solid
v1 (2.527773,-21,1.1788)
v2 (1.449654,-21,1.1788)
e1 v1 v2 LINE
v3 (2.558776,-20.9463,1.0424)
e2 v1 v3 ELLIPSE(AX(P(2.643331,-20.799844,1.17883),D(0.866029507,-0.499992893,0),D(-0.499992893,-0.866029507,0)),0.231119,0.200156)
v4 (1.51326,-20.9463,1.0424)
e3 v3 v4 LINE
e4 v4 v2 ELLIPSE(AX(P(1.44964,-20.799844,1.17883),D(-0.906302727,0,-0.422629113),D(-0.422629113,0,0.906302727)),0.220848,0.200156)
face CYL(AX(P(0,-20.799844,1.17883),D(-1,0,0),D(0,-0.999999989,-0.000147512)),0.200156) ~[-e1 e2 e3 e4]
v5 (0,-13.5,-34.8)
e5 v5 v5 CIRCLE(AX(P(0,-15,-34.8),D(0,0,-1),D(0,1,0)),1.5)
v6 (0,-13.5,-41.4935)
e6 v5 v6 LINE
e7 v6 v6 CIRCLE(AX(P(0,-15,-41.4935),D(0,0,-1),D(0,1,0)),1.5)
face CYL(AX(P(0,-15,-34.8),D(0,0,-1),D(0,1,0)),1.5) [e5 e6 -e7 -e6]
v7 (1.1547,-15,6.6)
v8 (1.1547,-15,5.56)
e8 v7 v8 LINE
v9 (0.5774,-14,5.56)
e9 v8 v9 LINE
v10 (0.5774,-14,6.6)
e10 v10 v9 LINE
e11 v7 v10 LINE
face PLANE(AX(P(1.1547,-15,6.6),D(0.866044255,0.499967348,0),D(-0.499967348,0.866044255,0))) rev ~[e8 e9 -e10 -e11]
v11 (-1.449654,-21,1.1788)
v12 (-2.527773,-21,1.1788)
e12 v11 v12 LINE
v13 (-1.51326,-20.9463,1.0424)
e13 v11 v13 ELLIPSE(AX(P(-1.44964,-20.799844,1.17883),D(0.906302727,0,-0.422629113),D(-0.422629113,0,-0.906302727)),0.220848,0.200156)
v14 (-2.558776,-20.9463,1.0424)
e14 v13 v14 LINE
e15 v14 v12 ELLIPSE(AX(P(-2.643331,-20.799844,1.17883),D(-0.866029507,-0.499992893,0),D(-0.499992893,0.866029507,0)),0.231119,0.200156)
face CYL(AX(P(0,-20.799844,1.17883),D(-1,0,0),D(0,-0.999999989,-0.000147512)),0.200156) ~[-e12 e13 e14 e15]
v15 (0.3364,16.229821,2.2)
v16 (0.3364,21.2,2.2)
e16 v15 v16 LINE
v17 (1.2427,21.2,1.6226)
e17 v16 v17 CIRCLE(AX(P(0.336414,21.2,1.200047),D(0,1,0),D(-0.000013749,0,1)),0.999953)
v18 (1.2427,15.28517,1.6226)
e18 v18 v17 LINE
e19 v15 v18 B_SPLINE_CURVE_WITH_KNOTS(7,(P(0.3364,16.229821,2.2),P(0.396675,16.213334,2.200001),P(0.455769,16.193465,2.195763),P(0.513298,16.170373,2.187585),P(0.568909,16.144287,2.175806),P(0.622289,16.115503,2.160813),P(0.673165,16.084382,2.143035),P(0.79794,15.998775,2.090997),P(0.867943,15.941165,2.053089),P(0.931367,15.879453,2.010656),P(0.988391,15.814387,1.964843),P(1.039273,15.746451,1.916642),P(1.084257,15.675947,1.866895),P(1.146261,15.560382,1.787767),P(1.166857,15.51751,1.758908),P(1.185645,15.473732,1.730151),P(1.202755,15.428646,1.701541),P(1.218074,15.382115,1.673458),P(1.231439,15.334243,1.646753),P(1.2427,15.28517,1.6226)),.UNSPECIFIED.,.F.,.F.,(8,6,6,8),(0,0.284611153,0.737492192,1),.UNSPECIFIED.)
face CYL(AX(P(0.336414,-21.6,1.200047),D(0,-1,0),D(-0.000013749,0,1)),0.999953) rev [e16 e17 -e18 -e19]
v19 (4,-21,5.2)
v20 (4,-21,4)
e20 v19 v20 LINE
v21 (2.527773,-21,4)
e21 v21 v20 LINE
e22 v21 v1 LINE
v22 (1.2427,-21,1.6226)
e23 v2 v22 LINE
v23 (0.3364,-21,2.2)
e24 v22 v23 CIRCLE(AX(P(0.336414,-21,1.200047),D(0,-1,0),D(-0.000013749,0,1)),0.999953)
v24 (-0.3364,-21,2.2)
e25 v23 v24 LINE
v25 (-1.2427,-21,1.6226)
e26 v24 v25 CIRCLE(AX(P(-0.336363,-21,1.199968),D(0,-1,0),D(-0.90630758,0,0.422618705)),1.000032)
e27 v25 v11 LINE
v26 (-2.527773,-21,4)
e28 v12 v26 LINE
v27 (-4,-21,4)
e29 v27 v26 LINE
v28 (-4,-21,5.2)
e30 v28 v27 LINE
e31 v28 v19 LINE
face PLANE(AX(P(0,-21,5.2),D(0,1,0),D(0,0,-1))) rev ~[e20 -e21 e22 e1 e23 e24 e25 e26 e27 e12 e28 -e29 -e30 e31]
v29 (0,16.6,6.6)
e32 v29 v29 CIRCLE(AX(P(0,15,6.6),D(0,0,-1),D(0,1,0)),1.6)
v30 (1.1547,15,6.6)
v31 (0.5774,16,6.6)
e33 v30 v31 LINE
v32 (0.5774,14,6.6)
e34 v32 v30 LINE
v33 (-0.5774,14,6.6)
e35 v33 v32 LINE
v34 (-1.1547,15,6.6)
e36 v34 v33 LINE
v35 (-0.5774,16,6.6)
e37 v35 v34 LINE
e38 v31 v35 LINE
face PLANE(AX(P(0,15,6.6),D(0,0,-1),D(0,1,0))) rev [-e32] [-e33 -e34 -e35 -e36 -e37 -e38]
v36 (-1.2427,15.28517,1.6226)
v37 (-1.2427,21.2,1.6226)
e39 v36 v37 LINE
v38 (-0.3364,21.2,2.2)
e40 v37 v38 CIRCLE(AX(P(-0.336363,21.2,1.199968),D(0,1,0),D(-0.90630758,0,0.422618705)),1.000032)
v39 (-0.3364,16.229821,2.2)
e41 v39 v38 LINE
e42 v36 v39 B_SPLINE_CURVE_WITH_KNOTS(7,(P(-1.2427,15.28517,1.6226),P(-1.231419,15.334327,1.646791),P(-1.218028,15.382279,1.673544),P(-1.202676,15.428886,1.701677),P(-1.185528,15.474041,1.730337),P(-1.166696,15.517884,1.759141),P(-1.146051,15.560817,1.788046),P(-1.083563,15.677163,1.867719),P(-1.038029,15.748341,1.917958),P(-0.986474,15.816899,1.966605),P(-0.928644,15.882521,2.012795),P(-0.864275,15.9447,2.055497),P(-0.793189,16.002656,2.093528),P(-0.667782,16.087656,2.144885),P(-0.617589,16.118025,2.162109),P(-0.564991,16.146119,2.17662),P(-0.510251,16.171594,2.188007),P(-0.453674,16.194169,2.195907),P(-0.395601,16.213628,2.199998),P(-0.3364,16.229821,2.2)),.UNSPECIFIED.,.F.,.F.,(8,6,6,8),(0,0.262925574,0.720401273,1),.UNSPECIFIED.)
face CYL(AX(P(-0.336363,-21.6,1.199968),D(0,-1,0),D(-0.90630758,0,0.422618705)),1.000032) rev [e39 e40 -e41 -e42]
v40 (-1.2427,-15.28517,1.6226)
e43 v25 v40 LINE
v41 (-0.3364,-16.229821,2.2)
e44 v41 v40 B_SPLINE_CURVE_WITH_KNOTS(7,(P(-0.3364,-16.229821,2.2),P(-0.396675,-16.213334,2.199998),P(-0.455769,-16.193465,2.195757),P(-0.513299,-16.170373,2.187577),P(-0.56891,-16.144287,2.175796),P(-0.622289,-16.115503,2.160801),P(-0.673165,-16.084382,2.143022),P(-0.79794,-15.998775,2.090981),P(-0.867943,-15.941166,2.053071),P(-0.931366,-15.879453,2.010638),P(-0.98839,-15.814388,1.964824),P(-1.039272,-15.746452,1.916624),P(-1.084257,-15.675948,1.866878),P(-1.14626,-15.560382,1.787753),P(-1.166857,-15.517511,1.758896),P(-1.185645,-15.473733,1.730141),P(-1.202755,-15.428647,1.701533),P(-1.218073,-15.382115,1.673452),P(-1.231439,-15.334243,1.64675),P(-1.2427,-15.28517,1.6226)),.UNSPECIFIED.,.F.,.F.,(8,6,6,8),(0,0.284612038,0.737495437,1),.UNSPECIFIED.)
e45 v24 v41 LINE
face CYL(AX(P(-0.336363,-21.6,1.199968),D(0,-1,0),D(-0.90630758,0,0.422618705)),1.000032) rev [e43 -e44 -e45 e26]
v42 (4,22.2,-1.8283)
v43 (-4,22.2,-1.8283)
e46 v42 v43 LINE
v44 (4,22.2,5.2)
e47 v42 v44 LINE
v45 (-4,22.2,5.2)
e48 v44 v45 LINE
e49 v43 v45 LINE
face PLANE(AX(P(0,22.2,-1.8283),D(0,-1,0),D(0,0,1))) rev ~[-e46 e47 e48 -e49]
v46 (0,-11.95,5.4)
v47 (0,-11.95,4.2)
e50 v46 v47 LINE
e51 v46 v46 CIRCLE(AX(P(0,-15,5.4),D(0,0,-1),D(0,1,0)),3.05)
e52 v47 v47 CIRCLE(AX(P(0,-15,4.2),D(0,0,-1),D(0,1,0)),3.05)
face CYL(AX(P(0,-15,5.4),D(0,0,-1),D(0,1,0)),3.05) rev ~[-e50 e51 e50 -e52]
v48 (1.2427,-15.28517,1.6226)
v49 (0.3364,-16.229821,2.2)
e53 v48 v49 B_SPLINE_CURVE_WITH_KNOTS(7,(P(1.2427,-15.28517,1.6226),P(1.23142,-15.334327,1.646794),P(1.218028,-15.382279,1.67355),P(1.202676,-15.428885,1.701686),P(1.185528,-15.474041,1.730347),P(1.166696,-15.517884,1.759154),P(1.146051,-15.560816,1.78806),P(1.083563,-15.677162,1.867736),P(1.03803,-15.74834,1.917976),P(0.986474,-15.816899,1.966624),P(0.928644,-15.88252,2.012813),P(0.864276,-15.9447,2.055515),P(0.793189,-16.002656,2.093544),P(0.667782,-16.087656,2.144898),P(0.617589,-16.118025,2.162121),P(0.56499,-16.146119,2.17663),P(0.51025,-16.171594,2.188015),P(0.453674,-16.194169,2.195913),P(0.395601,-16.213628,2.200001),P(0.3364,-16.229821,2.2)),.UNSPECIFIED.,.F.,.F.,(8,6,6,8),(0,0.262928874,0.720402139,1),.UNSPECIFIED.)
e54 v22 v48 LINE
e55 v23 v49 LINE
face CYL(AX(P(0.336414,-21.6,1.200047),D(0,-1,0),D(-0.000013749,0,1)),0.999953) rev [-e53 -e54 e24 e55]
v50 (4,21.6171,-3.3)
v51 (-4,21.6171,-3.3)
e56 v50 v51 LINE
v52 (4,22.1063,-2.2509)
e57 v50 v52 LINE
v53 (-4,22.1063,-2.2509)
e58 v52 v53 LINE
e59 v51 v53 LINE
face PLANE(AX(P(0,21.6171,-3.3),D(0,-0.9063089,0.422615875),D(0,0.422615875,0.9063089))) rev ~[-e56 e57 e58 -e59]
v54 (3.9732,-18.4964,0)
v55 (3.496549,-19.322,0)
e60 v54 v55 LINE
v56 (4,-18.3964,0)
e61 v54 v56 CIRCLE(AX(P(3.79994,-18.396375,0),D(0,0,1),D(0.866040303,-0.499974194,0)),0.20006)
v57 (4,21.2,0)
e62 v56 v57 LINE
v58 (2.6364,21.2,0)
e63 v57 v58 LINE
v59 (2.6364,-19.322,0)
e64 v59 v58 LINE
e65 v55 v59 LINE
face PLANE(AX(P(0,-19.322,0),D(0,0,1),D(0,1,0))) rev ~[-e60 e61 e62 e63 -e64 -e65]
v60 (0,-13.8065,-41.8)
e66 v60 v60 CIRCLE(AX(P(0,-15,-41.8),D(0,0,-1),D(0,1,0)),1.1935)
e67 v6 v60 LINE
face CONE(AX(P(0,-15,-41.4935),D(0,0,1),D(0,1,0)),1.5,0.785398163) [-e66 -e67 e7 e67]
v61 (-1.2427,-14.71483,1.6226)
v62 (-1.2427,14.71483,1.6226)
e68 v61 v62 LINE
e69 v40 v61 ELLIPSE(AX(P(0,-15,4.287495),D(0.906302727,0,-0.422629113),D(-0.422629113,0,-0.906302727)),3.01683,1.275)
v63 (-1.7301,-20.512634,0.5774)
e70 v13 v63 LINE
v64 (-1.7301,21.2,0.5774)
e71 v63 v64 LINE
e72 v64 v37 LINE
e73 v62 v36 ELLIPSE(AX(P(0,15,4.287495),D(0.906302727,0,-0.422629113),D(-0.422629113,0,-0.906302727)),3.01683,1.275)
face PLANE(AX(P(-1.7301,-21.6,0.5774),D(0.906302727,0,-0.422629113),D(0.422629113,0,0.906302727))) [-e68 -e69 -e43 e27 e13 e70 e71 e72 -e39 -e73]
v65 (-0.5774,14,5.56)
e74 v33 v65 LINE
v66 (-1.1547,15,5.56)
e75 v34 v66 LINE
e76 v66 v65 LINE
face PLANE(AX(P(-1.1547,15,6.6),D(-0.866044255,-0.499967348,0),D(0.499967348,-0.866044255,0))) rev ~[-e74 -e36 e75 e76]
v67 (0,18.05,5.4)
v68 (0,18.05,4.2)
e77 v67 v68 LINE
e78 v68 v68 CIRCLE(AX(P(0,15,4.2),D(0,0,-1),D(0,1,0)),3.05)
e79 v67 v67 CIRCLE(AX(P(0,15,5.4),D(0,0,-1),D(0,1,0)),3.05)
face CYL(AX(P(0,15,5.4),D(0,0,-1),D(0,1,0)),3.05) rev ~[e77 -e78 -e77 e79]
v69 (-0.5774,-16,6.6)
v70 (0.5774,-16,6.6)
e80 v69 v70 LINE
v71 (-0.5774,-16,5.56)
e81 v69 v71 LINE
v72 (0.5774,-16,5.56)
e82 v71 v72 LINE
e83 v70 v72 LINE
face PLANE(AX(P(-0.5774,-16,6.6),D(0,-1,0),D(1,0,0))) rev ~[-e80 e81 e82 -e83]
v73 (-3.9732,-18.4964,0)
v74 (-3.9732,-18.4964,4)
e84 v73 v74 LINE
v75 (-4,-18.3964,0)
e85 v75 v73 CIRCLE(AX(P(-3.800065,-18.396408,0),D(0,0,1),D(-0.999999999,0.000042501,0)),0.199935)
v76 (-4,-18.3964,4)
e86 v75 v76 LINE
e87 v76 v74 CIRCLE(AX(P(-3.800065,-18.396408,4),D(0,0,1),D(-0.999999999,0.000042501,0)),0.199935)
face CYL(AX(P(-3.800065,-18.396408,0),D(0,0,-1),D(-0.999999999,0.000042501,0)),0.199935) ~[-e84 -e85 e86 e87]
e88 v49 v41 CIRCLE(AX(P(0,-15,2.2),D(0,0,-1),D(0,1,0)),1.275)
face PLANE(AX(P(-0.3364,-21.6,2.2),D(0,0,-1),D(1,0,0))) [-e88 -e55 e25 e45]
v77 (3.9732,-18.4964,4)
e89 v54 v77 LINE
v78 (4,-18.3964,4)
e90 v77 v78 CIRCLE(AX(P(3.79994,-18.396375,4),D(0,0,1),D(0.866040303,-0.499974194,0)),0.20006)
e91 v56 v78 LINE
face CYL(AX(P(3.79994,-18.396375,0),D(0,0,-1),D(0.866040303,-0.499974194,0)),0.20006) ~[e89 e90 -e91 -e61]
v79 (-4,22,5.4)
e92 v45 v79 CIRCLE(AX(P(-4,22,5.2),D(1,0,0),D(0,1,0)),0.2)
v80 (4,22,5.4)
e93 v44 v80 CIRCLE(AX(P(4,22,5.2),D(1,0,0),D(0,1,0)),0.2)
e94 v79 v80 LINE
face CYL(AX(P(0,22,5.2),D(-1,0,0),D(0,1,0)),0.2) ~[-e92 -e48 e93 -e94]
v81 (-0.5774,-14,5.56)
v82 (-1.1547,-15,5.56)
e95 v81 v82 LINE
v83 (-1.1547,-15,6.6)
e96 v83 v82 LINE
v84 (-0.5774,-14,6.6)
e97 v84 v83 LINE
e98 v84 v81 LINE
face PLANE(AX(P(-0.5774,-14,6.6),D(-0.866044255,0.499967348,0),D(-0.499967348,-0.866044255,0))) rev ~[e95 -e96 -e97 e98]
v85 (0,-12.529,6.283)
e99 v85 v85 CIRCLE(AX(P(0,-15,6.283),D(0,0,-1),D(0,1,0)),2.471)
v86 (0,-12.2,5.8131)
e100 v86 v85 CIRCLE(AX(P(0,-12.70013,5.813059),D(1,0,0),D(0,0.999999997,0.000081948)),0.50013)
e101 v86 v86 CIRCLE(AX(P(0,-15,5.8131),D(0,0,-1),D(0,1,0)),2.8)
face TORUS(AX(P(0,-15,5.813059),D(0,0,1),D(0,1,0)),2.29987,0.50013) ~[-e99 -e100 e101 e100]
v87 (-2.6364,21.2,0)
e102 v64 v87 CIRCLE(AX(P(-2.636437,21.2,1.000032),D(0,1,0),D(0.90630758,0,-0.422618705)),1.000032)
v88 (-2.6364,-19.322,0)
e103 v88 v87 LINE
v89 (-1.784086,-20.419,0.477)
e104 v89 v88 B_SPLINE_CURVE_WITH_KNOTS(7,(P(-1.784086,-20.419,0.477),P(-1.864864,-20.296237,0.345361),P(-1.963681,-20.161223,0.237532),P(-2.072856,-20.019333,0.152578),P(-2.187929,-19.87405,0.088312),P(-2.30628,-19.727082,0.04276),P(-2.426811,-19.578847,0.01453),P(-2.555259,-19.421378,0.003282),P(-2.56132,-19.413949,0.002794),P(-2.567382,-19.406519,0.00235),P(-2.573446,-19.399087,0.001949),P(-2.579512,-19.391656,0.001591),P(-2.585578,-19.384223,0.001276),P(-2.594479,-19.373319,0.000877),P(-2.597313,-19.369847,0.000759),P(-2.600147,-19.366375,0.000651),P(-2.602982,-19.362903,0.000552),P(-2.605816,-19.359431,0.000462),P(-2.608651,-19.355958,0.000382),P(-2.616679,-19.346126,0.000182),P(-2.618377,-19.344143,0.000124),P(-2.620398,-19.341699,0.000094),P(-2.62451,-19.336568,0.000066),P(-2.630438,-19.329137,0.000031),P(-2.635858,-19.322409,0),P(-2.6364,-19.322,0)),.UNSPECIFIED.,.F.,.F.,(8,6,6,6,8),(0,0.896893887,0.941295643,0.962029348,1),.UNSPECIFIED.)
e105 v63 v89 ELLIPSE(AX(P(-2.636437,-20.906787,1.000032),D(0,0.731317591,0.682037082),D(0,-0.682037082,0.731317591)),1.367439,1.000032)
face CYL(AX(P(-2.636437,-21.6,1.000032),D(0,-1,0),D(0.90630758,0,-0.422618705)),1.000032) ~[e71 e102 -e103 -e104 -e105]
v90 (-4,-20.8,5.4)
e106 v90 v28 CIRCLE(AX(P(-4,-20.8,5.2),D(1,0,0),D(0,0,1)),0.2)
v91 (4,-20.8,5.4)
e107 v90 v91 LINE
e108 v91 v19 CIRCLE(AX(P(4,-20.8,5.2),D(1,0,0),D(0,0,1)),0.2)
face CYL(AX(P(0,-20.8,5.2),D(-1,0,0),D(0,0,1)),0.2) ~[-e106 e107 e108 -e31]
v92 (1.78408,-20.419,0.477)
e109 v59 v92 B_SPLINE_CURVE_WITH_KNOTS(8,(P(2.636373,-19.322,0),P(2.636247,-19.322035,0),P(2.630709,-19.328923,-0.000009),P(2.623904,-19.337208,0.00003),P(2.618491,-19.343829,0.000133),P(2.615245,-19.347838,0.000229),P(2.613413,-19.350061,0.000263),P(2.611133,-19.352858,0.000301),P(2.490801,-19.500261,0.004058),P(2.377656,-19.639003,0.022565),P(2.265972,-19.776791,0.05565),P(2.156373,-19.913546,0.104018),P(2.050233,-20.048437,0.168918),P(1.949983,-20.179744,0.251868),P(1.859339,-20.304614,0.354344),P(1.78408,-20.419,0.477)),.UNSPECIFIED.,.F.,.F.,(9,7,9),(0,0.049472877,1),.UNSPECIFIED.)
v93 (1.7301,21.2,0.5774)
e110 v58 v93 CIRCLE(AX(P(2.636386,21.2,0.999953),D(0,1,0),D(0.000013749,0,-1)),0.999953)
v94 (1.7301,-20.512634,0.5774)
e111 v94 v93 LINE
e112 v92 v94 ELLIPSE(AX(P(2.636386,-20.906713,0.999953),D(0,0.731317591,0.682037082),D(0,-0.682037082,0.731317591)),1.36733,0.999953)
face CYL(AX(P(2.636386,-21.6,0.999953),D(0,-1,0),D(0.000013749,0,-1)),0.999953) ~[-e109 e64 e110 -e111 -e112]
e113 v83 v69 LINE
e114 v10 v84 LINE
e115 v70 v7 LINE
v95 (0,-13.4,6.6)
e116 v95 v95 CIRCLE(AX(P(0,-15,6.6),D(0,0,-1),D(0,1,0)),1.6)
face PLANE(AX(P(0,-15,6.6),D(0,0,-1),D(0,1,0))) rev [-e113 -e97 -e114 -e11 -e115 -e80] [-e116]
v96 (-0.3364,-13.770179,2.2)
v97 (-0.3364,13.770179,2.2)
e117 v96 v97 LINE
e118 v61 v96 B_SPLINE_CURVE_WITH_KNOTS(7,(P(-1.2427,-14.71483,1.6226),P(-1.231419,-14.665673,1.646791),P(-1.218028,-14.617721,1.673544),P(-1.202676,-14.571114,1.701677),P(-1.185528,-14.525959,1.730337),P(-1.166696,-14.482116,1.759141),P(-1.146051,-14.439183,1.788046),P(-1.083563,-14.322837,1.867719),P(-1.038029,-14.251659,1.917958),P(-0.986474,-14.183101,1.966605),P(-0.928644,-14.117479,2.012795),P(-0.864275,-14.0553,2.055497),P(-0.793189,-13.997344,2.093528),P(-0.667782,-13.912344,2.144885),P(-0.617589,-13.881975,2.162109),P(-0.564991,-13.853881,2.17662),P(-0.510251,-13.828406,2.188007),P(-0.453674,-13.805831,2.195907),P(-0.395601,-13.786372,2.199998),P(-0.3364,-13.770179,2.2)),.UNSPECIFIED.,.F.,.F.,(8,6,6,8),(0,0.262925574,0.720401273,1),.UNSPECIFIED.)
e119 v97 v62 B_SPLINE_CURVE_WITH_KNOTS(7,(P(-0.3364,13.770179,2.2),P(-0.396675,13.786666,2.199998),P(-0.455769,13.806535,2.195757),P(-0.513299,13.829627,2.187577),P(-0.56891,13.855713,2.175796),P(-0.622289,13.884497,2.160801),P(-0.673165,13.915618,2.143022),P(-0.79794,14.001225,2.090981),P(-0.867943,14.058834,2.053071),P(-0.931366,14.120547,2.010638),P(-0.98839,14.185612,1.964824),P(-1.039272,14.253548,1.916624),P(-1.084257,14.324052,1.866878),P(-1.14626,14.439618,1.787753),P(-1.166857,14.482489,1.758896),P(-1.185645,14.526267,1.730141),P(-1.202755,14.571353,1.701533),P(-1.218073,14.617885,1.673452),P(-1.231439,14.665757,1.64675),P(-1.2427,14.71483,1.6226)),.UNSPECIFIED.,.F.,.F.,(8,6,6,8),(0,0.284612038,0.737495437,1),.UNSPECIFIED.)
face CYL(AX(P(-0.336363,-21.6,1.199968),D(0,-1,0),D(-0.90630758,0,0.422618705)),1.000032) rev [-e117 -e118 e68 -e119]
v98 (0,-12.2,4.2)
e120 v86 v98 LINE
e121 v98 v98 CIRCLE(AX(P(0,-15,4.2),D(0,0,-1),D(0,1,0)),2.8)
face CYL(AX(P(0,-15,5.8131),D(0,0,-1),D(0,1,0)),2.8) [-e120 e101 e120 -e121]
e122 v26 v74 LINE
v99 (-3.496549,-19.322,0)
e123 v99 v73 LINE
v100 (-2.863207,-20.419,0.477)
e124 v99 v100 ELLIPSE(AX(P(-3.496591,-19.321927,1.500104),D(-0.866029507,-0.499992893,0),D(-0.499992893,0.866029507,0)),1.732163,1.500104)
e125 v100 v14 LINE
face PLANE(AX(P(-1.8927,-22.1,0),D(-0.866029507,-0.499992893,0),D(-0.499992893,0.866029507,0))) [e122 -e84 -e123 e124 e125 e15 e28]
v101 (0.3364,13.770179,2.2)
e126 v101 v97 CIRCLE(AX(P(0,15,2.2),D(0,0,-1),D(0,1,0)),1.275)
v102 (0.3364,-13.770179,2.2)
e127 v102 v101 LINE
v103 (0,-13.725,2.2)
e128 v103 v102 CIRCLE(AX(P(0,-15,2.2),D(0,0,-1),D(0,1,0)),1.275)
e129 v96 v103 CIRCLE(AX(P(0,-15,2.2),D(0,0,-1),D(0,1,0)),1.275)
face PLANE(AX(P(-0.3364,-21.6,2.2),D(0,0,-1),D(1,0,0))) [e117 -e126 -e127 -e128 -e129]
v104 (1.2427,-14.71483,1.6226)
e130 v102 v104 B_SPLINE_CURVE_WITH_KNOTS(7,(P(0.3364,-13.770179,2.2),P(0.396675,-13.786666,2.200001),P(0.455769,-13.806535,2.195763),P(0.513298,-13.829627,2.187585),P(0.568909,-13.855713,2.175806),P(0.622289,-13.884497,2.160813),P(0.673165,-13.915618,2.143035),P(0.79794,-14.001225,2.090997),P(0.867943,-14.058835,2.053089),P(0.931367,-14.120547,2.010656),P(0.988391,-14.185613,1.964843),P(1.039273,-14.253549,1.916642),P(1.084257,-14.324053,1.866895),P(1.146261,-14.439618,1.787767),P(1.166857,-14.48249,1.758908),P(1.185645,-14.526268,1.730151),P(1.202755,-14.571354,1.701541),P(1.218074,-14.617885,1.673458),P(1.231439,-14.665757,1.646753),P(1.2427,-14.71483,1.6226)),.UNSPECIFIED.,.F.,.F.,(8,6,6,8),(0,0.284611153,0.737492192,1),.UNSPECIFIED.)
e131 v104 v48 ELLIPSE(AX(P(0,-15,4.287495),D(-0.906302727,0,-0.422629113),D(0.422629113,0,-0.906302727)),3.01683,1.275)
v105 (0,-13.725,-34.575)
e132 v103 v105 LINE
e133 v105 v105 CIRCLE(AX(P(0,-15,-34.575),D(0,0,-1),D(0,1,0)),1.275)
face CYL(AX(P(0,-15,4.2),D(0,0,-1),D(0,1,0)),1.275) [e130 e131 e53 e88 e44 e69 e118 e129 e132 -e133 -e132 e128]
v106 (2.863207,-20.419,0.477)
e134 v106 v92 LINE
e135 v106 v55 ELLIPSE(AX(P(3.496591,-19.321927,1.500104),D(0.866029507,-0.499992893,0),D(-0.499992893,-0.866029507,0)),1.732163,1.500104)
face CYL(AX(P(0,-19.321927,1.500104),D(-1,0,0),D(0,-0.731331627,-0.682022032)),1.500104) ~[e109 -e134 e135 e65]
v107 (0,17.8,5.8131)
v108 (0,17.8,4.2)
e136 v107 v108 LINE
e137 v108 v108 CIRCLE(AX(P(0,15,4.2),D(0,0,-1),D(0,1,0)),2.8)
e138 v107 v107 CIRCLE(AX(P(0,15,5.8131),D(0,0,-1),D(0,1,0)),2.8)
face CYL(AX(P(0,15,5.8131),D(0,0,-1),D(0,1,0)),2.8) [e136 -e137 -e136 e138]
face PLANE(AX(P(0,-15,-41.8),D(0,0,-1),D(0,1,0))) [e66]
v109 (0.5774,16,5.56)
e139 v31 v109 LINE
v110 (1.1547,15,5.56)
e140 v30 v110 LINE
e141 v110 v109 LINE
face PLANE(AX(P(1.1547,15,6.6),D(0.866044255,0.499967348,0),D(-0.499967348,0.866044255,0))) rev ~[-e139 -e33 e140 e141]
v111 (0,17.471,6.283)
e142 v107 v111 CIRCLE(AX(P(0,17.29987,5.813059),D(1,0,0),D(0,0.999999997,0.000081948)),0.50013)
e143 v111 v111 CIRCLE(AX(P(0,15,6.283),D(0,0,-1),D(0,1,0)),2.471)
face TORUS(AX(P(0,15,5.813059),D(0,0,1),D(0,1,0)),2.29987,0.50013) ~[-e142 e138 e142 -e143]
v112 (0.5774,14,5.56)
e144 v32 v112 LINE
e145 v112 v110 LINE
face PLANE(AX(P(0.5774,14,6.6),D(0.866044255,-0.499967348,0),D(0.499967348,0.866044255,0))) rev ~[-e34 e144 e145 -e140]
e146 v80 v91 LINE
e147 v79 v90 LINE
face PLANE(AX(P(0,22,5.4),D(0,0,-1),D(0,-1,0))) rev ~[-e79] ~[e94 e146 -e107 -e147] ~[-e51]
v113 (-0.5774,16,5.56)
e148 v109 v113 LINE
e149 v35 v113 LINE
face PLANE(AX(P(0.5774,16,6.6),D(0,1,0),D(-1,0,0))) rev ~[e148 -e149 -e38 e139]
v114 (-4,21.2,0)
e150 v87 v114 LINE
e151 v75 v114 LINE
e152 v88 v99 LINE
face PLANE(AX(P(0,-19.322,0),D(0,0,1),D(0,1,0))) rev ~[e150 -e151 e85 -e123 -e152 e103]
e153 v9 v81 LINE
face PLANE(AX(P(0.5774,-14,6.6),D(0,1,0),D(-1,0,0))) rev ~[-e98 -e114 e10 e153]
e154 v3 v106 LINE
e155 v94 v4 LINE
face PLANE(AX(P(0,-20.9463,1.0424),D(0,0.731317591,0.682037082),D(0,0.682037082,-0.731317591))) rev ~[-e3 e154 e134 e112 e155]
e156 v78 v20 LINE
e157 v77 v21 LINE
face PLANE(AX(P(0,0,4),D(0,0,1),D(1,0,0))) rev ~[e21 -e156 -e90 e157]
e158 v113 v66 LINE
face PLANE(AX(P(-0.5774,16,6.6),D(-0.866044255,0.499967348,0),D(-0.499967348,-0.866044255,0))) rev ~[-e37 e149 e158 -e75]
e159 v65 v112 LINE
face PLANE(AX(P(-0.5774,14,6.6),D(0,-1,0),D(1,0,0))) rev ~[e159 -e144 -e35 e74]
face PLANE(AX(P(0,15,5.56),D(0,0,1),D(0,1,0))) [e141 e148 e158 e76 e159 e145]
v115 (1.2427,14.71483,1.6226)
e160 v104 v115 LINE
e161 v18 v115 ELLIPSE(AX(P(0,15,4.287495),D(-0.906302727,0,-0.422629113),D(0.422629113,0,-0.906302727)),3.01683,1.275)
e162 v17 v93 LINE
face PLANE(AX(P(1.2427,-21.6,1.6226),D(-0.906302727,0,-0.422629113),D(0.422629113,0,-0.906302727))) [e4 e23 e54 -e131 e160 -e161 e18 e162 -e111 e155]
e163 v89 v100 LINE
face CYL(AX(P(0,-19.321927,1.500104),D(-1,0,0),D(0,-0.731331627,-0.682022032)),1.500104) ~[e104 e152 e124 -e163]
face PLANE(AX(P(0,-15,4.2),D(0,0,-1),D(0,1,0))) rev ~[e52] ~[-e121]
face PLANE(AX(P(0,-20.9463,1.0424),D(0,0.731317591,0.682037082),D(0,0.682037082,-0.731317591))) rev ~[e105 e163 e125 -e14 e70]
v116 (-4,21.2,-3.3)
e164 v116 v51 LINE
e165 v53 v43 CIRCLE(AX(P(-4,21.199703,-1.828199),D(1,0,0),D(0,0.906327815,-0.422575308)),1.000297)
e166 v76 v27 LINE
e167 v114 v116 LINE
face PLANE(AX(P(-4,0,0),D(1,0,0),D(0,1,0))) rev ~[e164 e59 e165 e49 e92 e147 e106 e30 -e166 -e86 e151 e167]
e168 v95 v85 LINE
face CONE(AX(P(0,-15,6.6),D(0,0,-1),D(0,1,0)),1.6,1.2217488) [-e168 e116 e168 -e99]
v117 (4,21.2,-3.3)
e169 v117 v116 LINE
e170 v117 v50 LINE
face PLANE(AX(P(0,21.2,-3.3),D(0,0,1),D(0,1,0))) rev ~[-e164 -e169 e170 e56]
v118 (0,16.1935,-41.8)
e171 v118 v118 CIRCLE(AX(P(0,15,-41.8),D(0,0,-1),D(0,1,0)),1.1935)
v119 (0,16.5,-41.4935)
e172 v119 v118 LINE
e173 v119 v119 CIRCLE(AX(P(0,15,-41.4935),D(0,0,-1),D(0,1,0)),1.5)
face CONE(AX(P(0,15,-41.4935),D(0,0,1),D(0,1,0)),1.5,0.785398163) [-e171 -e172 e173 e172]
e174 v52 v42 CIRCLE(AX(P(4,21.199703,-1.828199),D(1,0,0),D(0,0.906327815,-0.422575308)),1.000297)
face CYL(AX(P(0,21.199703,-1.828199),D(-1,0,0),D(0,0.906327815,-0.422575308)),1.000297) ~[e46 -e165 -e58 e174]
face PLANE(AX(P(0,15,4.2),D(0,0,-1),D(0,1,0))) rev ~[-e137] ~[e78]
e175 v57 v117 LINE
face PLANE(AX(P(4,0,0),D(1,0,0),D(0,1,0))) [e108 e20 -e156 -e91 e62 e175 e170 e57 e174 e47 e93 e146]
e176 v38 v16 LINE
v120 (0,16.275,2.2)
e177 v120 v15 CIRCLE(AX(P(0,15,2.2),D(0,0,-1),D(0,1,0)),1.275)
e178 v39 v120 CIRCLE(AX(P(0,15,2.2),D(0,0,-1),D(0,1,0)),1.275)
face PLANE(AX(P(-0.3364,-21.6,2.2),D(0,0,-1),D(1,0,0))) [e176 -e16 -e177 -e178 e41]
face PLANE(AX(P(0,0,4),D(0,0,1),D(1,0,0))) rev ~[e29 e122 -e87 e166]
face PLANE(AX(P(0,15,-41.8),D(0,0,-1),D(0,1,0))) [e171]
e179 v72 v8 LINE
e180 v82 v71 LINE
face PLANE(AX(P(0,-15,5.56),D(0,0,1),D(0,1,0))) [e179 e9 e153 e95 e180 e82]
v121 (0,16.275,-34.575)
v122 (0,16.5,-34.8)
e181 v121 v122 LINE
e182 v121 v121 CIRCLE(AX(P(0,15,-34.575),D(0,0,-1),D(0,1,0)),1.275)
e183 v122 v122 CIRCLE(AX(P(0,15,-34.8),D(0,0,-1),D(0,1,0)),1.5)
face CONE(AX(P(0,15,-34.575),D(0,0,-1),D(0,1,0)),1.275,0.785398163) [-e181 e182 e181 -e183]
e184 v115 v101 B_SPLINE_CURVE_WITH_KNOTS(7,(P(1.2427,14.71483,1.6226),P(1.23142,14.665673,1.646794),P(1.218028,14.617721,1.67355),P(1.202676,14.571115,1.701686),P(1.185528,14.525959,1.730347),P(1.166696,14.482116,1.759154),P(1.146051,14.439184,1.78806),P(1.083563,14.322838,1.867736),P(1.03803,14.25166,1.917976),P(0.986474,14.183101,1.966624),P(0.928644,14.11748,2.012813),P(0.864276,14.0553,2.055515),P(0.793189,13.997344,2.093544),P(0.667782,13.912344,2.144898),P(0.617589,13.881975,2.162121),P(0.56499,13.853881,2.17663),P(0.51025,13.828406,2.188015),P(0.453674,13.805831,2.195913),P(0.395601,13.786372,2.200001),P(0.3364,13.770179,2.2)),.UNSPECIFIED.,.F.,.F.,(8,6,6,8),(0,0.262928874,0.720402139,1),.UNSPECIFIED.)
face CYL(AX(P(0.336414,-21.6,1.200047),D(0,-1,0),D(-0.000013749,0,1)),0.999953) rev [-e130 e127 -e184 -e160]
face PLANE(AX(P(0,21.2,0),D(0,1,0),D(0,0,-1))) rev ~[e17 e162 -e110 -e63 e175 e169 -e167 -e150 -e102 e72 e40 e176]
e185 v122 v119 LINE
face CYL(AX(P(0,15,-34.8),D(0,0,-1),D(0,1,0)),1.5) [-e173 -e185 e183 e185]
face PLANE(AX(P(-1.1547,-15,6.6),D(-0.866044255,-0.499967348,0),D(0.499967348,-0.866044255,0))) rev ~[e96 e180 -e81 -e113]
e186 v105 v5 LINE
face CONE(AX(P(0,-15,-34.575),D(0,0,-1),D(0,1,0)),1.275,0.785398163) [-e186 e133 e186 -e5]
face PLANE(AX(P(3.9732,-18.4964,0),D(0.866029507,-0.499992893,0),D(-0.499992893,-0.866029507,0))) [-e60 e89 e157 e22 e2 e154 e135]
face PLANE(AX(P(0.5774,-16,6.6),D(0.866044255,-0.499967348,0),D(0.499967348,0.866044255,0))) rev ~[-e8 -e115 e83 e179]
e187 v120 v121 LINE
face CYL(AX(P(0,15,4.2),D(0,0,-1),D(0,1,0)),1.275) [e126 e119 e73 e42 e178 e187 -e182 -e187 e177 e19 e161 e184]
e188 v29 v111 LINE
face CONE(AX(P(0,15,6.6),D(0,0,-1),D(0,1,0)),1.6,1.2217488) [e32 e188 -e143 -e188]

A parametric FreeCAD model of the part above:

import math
import FreeCAD as App
import Part
import Sketcher
from FreeCAD import Vector
Q = App.Units.Quantity


def add_polygon(sketch, points):
    """Adds a closed chain of lines whose ends are joined by coincident constraints."""
    first, n = sketch.GeometryCount, len(points)
    for a, b in zip(points, points[1:] + points[:1]):
        sketch.addGeometry(Part.LineSegment(App.Vector(*a, 0), App.Vector(*b, 0)), False)
    for i in range(n):
        sketch.addConstraint(Sketcher.Constraint("Coincident", first + i, 2, first + (i + 1) % n, 1))

doc = App.newDocument("Part")
body = doc.addObject("PartDesign::Body", "Body")

# Sketch on YZ plane
sketch1 = body.newObject("Sketcher::SketchObject", "Sketch")
sketch1.AttachmentSupport = (doc.getObject("YZ_Plane"), [""])
sketch1.MapMode = "FlatFace"
sketch1.addGeometry([
    Part.ArcOfCircle(Part.Circle(Vector(22, 5.2, 0), Vector(0, 0, 1), 0.2), math.radians(0), math.radians(90)),  # 0
    Part.LineSegment(Vector(22, 5.4, 0), Vector(-20.8, 5.4, 0)),  # 1
    Part.ArcOfCircle(Part.Circle(Vector(-20.8, 5.2, 0), Vector(0, 0, 1), 0.2), math.radians(90), math.radians(180)),  # 2
    Part.LineSegment(Vector(-21, 5.2, 0), Vector(-21, 1.18, 0)),  # 3
    Part.ArcOfCircle(Part.Circle(Vector(-20.8, 1.18, 0), Vector(0, 0, 1), 0.2), math.radians(180), math.radians(223)),  # 4
    Part.LineSegment(Vector(-20.95, 1.04, 0), Vector(-20.42, 0.48, 0)),  # 5
    Part.ArcOfCircle(Part.Circle(Vector(-19.32, 1.5, 0), Vector(0, 0, 1), 1.5), math.radians(-137), math.radians(-90)),  # 6
    Part.LineSegment(Vector(-19.32, 0, 0), Vector(21.2, 0, 0)),  # 7
    Part.LineSegment(Vector(21.2, 0, 0), Vector(21.2, -3.3, 0)),  # 8
    Part.LineSegment(Vector(21.2, -3.3, 0), Vector(21.62, -3.3, 0)),  # 9
    Part.LineSegment(Vector(21.62, -3.3, 0), Vector(22.11, -2.25, 0)),  # 10
    Part.ArcOfCircle(Part.Circle(Vector(21.2, -1.83, 0), Vector(0, 0, 1), 1), math.radians(-25), math.radians(0)),  # 11
    Part.LineSegment(Vector(22.2, -1.83, 0), Vector(22.2, 5.2, 0)),  # 12
], False)
sketch1.addConstraint([
    Sketcher.Constraint("Tangent", 0, 2, 1, 1),
    Sketcher.Constraint("Tangent", 1, 2, 2, 1),
    Sketcher.Constraint("Tangent", 2, 2, 3, 1),
    Sketcher.Constraint("Tangent", 3, 2, 4, 1),
    Sketcher.Constraint("Tangent", 4, 2, 5, 1),
    Sketcher.Constraint("Tangent", 5, 2, 6, 1),
    Sketcher.Constraint("Tangent", 6, 2, 7, 1),
    Sketcher.Constraint("Coincident", 7, 2, 8, 1),
    Sketcher.Constraint("Coincident", 8, 2, 9, 1),
    Sketcher.Constraint("Coincident", 9, 2, 10, 1),
    Sketcher.Constraint("Tangent", 10, 2, 11, 1),
    Sketcher.Constraint("Tangent", 11, 2, 12, 1),
    Sketcher.Constraint("Tangent", 12, 2, 0, 1),
    Sketcher.Constraint("Horizontal", 1),
    Sketcher.Constraint("Vertical", 3),
    Sketcher.Constraint("Horizontal", 7),
    Sketcher.Constraint("Vertical", 8),
    Sketcher.Constraint("Horizontal", 9),
    Sketcher.Constraint("Vertical", 12),
    Sketcher.Constraint("Equal", 0, 2),
    Sketcher.Constraint("Equal", 2, 4),
    Sketcher.Constraint("PointOnObject", 6, 2, -1),
    Sketcher.Constraint("Vertical", 11, 3, 7, 2),
    Sketcher.Constraint("Radius", 11, Q("1 mm")),
    Sketcher.Constraint("Radius", 0, Q("0.2 mm")),
    Sketcher.Constraint("Radius", 6, Q("1.5 mm")),
    Sketcher.Constraint("Angle", 10, Q("65.0002 deg")),
    Sketcher.Constraint("DistanceX", 1, 2, 1, 1, Q("42.8 mm")),
    Sketcher.Constraint("DistanceY", 8, 2, 8, 1, Q("3.3 mm")),
    Sketcher.Constraint("DistanceX", -1, 1, 0, 3, Q("22 mm")),
    Sketcher.Constraint("DistanceY", -1, 1, 0, 3, Q("5.2 mm")),
    Sketcher.Constraint("DistanceX", 7, 1, 7, 2, Q("40.522 mm")),
    Sketcher.Constraint("DistanceX", 9, 1, 9, 2, Q("0.417 mm")),
    Sketcher.Constraint("DistanceY", 3, 2, 3, 1, Q("4.0212 mm")),
])
pad1 = body.newObject("PartDesign::Pad", "Pad")
pad1.Profile = sketch1
pad1.Length = 8
pad1.Midplane = True

# Sketch on YZ plane
sketch2 = body.newObject("Sketcher::SketchObject", "Sketch001")
sketch2.AttachmentSupport = (doc.getObject("YZ_Plane"), [""])
sketch2.MapMode = "FlatFace"
add_polygon(sketch2, [(15, 5.4), (15, 4.2), (18.1, 4.2), (18.1, 5.4)])  # lines 0-3
sketch2.addGeometry(Part.LineSegment(Vector(15, 5.4, 0), Vector(15, 4.2, 0)), True)  # axis
sketch2.addConstraint([
    Sketcher.Constraint("Vertical", 0),
    Sketcher.Constraint("Horizontal", 1),
    Sketcher.Constraint("Vertical", 2),
    Sketcher.Constraint("Horizontal", 3),
    Sketcher.Constraint("Vertical", 4),
    Sketcher.Constraint("Coincident", 4, 1, 3, 2),
    Sketcher.Constraint("Horizontal", 1, 2, 4, 2),
    Sketcher.Constraint("DistanceY", 0, 2, 0, 1, Q("1.2 mm")),
    Sketcher.Constraint("DistanceX", -1, 1, 0, 2, Q("15 mm")),
    Sketcher.Constraint("DistanceX", 1, 1, 1, 2, Q("3.05 mm")),
    Sketcher.Constraint("DistanceY", -1, 1, 0, 2, Q("4.2 mm")),
])
groove = body.newObject("PartDesign::Groove", "Groove")
groove.Profile = sketch2
groove.ReferenceAxis = (sketch2, ["Axis0"])
groove.Angle = 360

# Sketch on YZ plane
sketch3 = body.newObject("Sketcher::SketchObject", "Sketch002")
sketch3.AttachmentSupport = (doc.getObject("YZ_Plane"), [""])
sketch3.MapMode = "FlatFace"
add_polygon(sketch3, [(-15, 5.4), (-15, 4.2), (-11.9, 4.2), (-11.9, 5.4)])  # lines 0-3
sketch3.addGeometry(Part.LineSegment(Vector(-15, 5.4, 0), Vector(-15, 4.2, 0)), True)  # axis
sketch3.addConstraint([
    Sketcher.Constraint("Vertical", 0),
    Sketcher.Constraint("Horizontal", 1),
    Sketcher.Constraint("Vertical", 2),
    Sketcher.Constraint("Horizontal", 3),
    Sketcher.Constraint("Vertical", 4),
    Sketcher.Constraint("Coincident", 4, 1, 3, 2),
    Sketcher.Constraint("Horizontal", 1, 2, 4, 2),
    Sketcher.Constraint("DistanceY", 0, 2, 0, 1, Q("1.2 mm")),
    Sketcher.Constraint("DistanceX", 0, 2, -1, 1, Q("15 mm")),
    Sketcher.Constraint("DistanceX", 1, 1, 1, 2, Q("3.05 mm")),
    Sketcher.Constraint("DistanceY", -1, 1, 0, 2, Q("4.2 mm")),
])
groove2 = body.newObject("PartDesign::Groove", "Groove001")
groove2.Profile = sketch3
groove2.ReferenceAxis = (sketch3, ["Axis0"])
groove2.Angle = 360

# Sketch on XZ plane
sketch4 = body.newObject("Sketcher::SketchObject", "Sketch003")
sketch4.AttachmentSupport = (doc.getObject("XZ_Plane"), [""])
sketch4.MapMode = "FlatFace"
sketch4.AttachmentOffset = App.Placement(Vector(0, 0, 21.6), App.Rotation())
sketch4.addGeometry([
    Part.ArcOfCircle(Part.Circle(Vector(-2.6, 1, 0), Vector(0, 0, 1), 1), math.radians(-90), math.radians(-25)),  # 0
    Part.LineSegment(Vector(-1.7, 0.6, 0), Vector(-1.2, 1.6, 0)),  # 1
    Part.ArcOfCircle(Part.Circle(Vector(-0.3, 1.2, 0), Vector(0, 0, 1), 1), math.radians(90), math.radians(155)),  # 2
    Part.LineSegment(Vector(-0.3, 2.2, 0), Vector(0.3, 2.2, 0)),  # 3
    Part.ArcOfCircle(Part.Circle(Vector(0.3, 1.2, 0), Vector(0, 0, 1), 1), math.radians(25), math.radians(90)),  # 4
    Part.LineSegment(Vector(1.2, 1.6, 0), Vector(1.7, 0.6, 0)),  # 5
    Part.ArcOfCircle(Part.Circle(Vector(2.6, 1, 0), Vector(0, 0, 1), 1), math.radians(-155), math.radians(-90)),  # 6
    Part.LineSegment(Vector(2.6, 0, 0), Vector(-2.6, 0, 0)),  # 7
], False)
sketch4.addConstraint([
    Sketcher.Constraint("Tangent", 0, 2, 1, 1),
    Sketcher.Constraint("Tangent", 1, 2, 2, 2),
    Sketcher.Constraint("Tangent", 2, 1, 3, 1),
    Sketcher.Constraint("Tangent", 3, 2, 4, 2),
    Sketcher.Constraint("Tangent", 4, 1, 5, 1),
    Sketcher.Constraint("Tangent", 5, 2, 6, 1),
    Sketcher.Constraint("Tangent", 6, 2, 7, 1),
    Sketcher.Constraint("Tangent", 7, 2, 0, 1),
    Sketcher.Constraint("Horizontal", 3),
    Sketcher.Constraint("Horizontal", 7),
    Sketcher.Constraint("Equal", 0, 2),
    Sketcher.Constraint("Equal", 2, 4),
    Sketcher.Constraint("Equal", 4, 6),
    Sketcher.Constraint("Symmetric", 6, 2, 7, 2, -1, 1),
    Sketcher.Constraint("Horizontal", 1, 2, 4, 1),
    Sketcher.Constraint("Radius", 0, Q("1 mm")),
    Sketcher.Constraint("Angle", 1, Q("64.9993 deg")),
    Sketcher.Constraint("DistanceY", -1, 1, 2, 3, Q("1.2 mm")),
    Sketcher.Constraint("DistanceX", 0, 2, -1, 1, Q("1.73 mm")),
])
pocket1 = body.newObject("PartDesign::Pocket", "Pocket")
pocket1.Profile = sketch4
pocket1.Length = 42.8

# Sketch on YZ plane
sketch5 = body.newObject("Sketcher::SketchObject", "Sketch004")
sketch5.AttachmentSupport = (doc.getObject("YZ_Plane"), [""])
sketch5.MapMode = "FlatFace"
sketch5.addGeometry([
    Part.LineSegment(Vector(15, 6.6, 0), Vector(15, -41.8, 0)),  # 0
    Part.LineSegment(Vector(15, -41.8, 0), Vector(16.19, -41.8, 0)),  # 1
    Part.LineSegment(Vector(16.19, -41.8, 0), Vector(16.5, -41.49, 0)),  # 2
    Part.LineSegment(Vector(16.5, -41.49, 0), Vector(16.5, -34.8, 0)),  # 3
    Part.LineSegment(Vector(16.5, -34.8, 0), Vector(16.27, -34.58, 0)),  # 4
    Part.LineSegment(Vector(16.27, -34.58, 0), Vector(16.27, 4.2, 0)),  # 5
    Part.LineSegment(Vector(16.27, 4.2, 0), Vector(17.8, 4.2, 0)),  # 6
    Part.LineSegment(Vector(17.8, 4.2, 0), Vector(17.8, 5.81, 0)),  # 7
    Part.ArcOfCircle(Part.Circle(Vector(17.3, 5.81, 0), Vector(0, 0, 1), 0.5), math.radians(0), math.radians(70)),  # 8
    Part.LineSegment(Vector(17.47, 6.28, 0), Vector(16.6, 6.6, 0)),  # 9
    Part.LineSegment(Vector(16.6, 6.6, 0), Vector(15, 6.6, 0)),  # 10
], False)
sketch5.addGeometry(Part.LineSegment(Vector(15, 6.6, 0), Vector(15, -41.8, 0)), True)  # axis
sketch5.addConstraint([
    Sketcher.Constraint("Coincident", 0, 2, 1, 1),
    Sketcher.Constraint("Coincident", 1, 2, 2, 1),
    Sketcher.Constraint("Coincident", 2, 2, 3, 1),
    Sketcher.Constraint("Coincident", 3, 2, 4, 1),
    Sketcher.Constraint("Coincident", 4, 2, 5, 1),
    Sketcher.Constraint("Coincident", 5, 2, 6, 1),
    Sketcher.Constraint("Coincident", 6, 2, 7, 1),
    Sketcher.Constraint("Tangent", 7, 2, 8, 1),
    Sketcher.Constraint("Tangent", 8, 2, 9, 1),
    Sketcher.Constraint("Coincident", 9, 2, 10, 1),
    Sketcher.Constraint("Coincident", 10, 2, 0, 1),
    Sketcher.Constraint("Vertical", 0),
    Sketcher.Constraint("Horizontal", 1),
    Sketcher.Constraint("Vertical", 3),
    Sketcher.Constraint("Vertical", 5),
    Sketcher.Constraint("Horizontal", 6),
    Sketcher.Constraint("Vertical", 7),
    Sketcher.Constraint("Horizontal", 10),
    Sketcher.Constraint("Vertical", 11),
    Sketcher.Constraint("Coincident", 11, 1, 10, 2),
    Sketcher.Constraint("Perpendicular", 2, 4),
    Sketcher.Constraint("Horizontal", 1, 2, 11, 2),
    Sketcher.Constraint("Radius", 8, Q("0.5 mm")),
    Sketcher.Constraint("Angle", 2, Q("45 deg")),
    Sketcher.Constraint("Angle", 9, Q("160.001 deg")),
    Sketcher.Constraint("DistanceX", 10, 2, 10, 1, Q("1.6 mm")),
    Sketcher.Constraint("DistanceY", 0, 2, 0, 1, Q("48.4 mm")),
    Sketcher.Constraint("DistanceX", -1, 1, 0, 2, Q("15 mm")),
    Sketcher.Constraint("DistanceY", 1, 2, 3, 2, Q("7 mm")),
    Sketcher.Constraint("DistanceY", 3, 2, 5, 2, Q("39 mm")),
    Sketcher.Constraint("DistanceX", -1, 1, 8, 3, Q("17.3 mm")),
    Sketcher.Constraint("DistanceY", 0, 2, -1, 1, Q("41.8 mm")),
    Sketcher.Constraint("DistanceX", -1, 1, 2, 2, Q("16.5 mm")),
    Sketcher.Constraint("DistanceX", 6, 1, 6, 2, Q("1.525 mm")),
    Sketcher.Constraint("DistanceX", 1, 1, 1, 2, Q("1.1935 mm")),
])
revolution = body.newObject("PartDesign::Revolution", "Revolution")
revolution.Profile = sketch5
revolution.ReferenceAxis = (sketch5, ["Axis0"])
revolution.Angle = 360

# Sketch on YZ plane
sketch6 = body.newObject("Sketcher::SketchObject", "Sketch005")
sketch6.AttachmentSupport = (doc.getObject("YZ_Plane"), [""])
sketch6.MapMode = "FlatFace"
sketch6.addGeometry([
    Part.LineSegment(Vector(-15, 6.6, 0), Vector(-15, -41.8, 0)),  # 0
    Part.LineSegment(Vector(-15, -41.8, 0), Vector(-13.81, -41.8, 0)),  # 1
    Part.LineSegment(Vector(-13.81, -41.8, 0), Vector(-13.5, -41.49, 0)),  # 2
    Part.LineSegment(Vector(-13.5, -41.49, 0), Vector(-13.5, -34.8, 0)),  # 3
    Part.LineSegment(Vector(-13.5, -34.8, 0), Vector(-13.72, -34.58, 0)),  # 4
    Part.LineSegment(Vector(-13.72, -34.58, 0), Vector(-13.72, 4.2, 0)),  # 5
    Part.LineSegment(Vector(-13.72, 4.2, 0), Vector(-12.2, 4.2, 0)),  # 6
    Part.LineSegment(Vector(-12.2, 4.2, 0), Vector(-12.2, 5.81, 0)),  # 7
    Part.ArcOfCircle(Part.Circle(Vector(-12.7, 5.81, 0), Vector(0, 0, 1), 0.5), math.radians(0), math.radians(70)),  # 8
    Part.LineSegment(Vector(-12.53, 6.28, 0), Vector(-13.4, 6.6, 0)),  # 9
    Part.LineSegment(Vector(-13.4, 6.6, 0), Vector(-15, 6.6, 0)),  # 10
], False)
sketch6.addGeometry(Part.LineSegment(Vector(-15, 6.6, 0), Vector(-15, -41.8, 0)), True)  # axis
sketch6.addConstraint([
    Sketcher.Constraint("Coincident", 0, 2, 1, 1),
    Sketcher.Constraint("Coincident", 1, 2, 2, 1),
    Sketcher.Constraint("Coincident", 2, 2, 3, 1),
    Sketcher.Constraint("Coincident", 3, 2, 4, 1),
    Sketcher.Constraint("Coincident", 4, 2, 5, 1),
    Sketcher.Constraint("Coincident", 5, 2, 6, 1),
    Sketcher.Constraint("Coincident", 6, 2, 7, 1),
    Sketcher.Constraint("Tangent", 7, 2, 8, 1),
    Sketcher.Constraint("Tangent", 8, 2, 9, 1),
    Sketcher.Constraint("Coincident", 9, 2, 10, 1),
    Sketcher.Constraint("Coincident", 10, 2, 0, 1),
    Sketcher.Constraint("Vertical", 0),
    Sketcher.Constraint("Horizontal", 1),
    Sketcher.Constraint("Vertical", 3),
    Sketcher.Constraint("Vertical", 5),
    Sketcher.Constraint("Horizontal", 6),
    Sketcher.Constraint("Vertical", 7),
    Sketcher.Constraint("Horizontal", 10),
    Sketcher.Constraint("Vertical", 11),
    Sketcher.Constraint("Coincident", 11, 1, 10, 2),
    Sketcher.Constraint("Perpendicular", 2, 4),
    Sketcher.Constraint("Horizontal", 1, 2, 11, 2),
    Sketcher.Constraint("Radius", 8, Q("0.5 mm")),
    Sketcher.Constraint("Angle", 2, Q("45 deg")),
    Sketcher.Constraint("Angle", 9, Q("160.001 deg")),
    Sketcher.Constraint("DistanceX", 10, 2, 10, 1, Q("1.6 mm")),
    Sketcher.Constraint("DistanceY", 0, 2, 0, 1, Q("48.4 mm")),
    Sketcher.Constraint("DistanceX", 0, 2, -1, 1, Q("15 mm")),
    Sketcher.Constraint("DistanceY", 1, 2, 3, 2, Q("7 mm")),
    Sketcher.Constraint("DistanceY", 3, 2, 5, 2, Q("39 mm")),
    Sketcher.Constraint("DistanceX", 8, 3, -1, 1, Q("12.7 mm")),
    Sketcher.Constraint("DistanceY", 0, 2, -1, 1, Q("41.8 mm")),
    Sketcher.Constraint("DistanceX", 2, 2, -1, 1, Q("13.5 mm")),
    Sketcher.Constraint("DistanceX", 6, 1, 6, 2, Q("1.525 mm")),
    Sketcher.Constraint("DistanceX", 1, 1, 1, 2, Q("1.1935 mm")),
])
revolution2 = body.newObject("PartDesign::Revolution", "Revolution001")
revolution2.Profile = sketch6
revolution2.ReferenceAxis = (sketch6, ["Axis0"])
revolution2.Angle = 360

# Sketch on XY plane
sketch7 = body.newObject("Sketcher::SketchObject", "Sketch006")
sketch7.AttachmentSupport = (doc.getObject("XY_Plane"), [""])
sketch7.MapMode = "FlatFace"
sketch7.AttachmentOffset = App.Placement(Vector(0, 0, 6.6), App.Rotation())
add_polygon(sketch7, [(-0.6, 14), (0.6, 14), (1.2, 15), (0.6, 16), (-0.6, 16), (-1.2, 15)])  # lines 0-5
sketch7.addConstraint([
    Sketcher.Constraint("Horizontal", 0),
    Sketcher.Constraint("Horizontal", 3),
    Sketcher.Constraint("Symmetric", 1, 2, 4, 2, -2),
    Sketcher.Constraint("Parallel", 1, 4),
    Sketcher.Constraint("Parallel", 2, 5),
    Sketcher.Constraint("Vertical", 0, 2, 2, 2),
    Sketcher.Constraint("Vertical", 3, 2, 5, 2),
    Sketcher.Constraint("DistanceY", -1, 1, 0, 2, Q("14 mm")),
    Sketcher.Constraint("DistanceY", -1, 1, 1, 2, Q("15 mm")),
    Sketcher.Constraint("DistanceX", 0, 1, 0, 2, Q("1.1548 mm")),
    Sketcher.Constraint("DistanceX", 3, 2, 1, 2, Q("1.732 mm")),
])
pocket2 = body.newObject("PartDesign::Pocket", "Pocket001")
pocket2.Profile = sketch7
pocket2.Length = 1.04

# Sketch on XY plane
sketch8 = body.newObject("Sketcher::SketchObject", "Sketch007")
sketch8.AttachmentSupport = (doc.getObject("XY_Plane"), [""])
sketch8.MapMode = "FlatFace"
sketch8.AttachmentOffset = App.Placement(Vector(0, 0, 6.6), App.Rotation())
add_polygon(sketch8, [(-0.6, -16), (0.6, -16), (1.2, -15), (0.6, -14), (-0.6, -14), (-1.2, -15)])  # lines 0-5
sketch8.addConstraint([
    Sketcher.Constraint("Horizontal", 0),
    Sketcher.Constraint("Horizontal", 3),
    Sketcher.Constraint("Symmetric", 1, 2, 4, 2, -2),
    Sketcher.Constraint("Parallel", 1, 4),
    Sketcher.Constraint("Parallel", 2, 5),
    Sketcher.Constraint("Vertical", 0, 2, 2, 2),
    Sketcher.Constraint("Vertical", 3, 2, 5, 2),
    Sketcher.Constraint("DistanceY", 0, 2, -1, 1, Q("16 mm")),
    Sketcher.Constraint("DistanceY", 1, 2, -1, 1, Q("15 mm")),
    Sketcher.Constraint("DistanceX", 0, 1, 0, 2, Q("1.1548 mm")),
    Sketcher.Constraint("DistanceX", 3, 2, 1, 2, Q("1.732 mm")),
])
pocket3 = body.newObject("PartDesign::Pocket", "Pocket002")
pocket3.Profile = sketch8
pocket3.Length = 1.04

# Sketch on XY plane
sketch9 = body.newObject("Sketcher::SketchObject", "Sketch008")
sketch9.AttachmentSupport = (doc.getObject("XY_Plane"), [""])
sketch9.MapMode = "FlatFace"
sketch9.addGeometry([
    Part.LineSegment(Vector(-4, -18.4, 0), Vector(-5, -18.4, 0)),  # 0
    Part.LineSegment(Vector(-5, -18.4, 0), Vector(-5, -23.2, 0)),  # 1
    Part.LineSegment(Vector(-5, -23.2, 0), Vector(5, -23.2, 0)),  # 2
    Part.LineSegment(Vector(5, -23.2, 0), Vector(5, -18.4, 0)),  # 3
    Part.LineSegment(Vector(5, -18.4, 0), Vector(4, -18.4, 0)),  # 4
    Part.ArcOfCircle(Part.Circle(Vector(3.8, -18.4, 0), Vector(0, 0, 1), 0.2), math.radians(-30), math.radians(0)),  # 5
    Part.LineSegment(Vector(3.97, -18.5, 0), Vector(1.89, -22.1, 0)),  # 6
    Part.ArcOfCircle(Part.Circle(Vector(1.72, -22, 0), Vector(0, 0, 1), 0.2), math.radians(-90), math.radians(-30)),  # 7
    Part.LineSegment(Vector(1.72, -22.2, 0), Vector(-1.72, -22.2, 0)),  # 8
    Part.ArcOfCircle(Part.Circle(Vector(-1.72, -22, 0), Vector(0, 0, 1), 0.2), math.radians(-150), math.radians(-90)),  # 9
    Part.LineSegment(Vector(-1.89, -22.1, 0), Vector(-3.97, -18.5, 0)),  # 10
    Part.ArcOfCircle(Part.Circle(Vector(-3.8, -18.4, 0), Vector(0, 0, 1), 0.2), math.radians(180), math.radians(210)),  # 11
], False)
sketch9.addConstraint([
    Sketcher.Constraint("Coincident", 0, 2, 1, 1),
    Sketcher.Constraint("Coincident", 1, 2, 2, 1),
    Sketcher.Constraint("Coincident", 2, 2, 3, 1),
    Sketcher.Constraint("Coincident", 3, 2, 4, 1),
    Sketcher.Constraint("Coincident", 4, 2, 5, 2),
    Sketcher.Constraint("Tangent", 5, 1, 6, 1),
    Sketcher.Constraint("Tangent", 6, 2, 7, 2),
    Sketcher.Constraint("Tangent", 7, 1, 8, 1),
    Sketcher.Constraint("Tangent", 8, 2, 9, 2),
    Sketcher.Constraint("Tangent", 9, 1, 10, 1),
    Sketcher.Constraint("Tangent", 10, 2, 11, 2),
    Sketcher.Constraint("Coincident", 11, 1, 0, 1),
    Sketcher.Constraint("Horizontal", 0),
    Sketcher.Constraint("Vertical", 1),
    Sketcher.Constraint("Horizontal", 2),
    Sketcher.Constraint("Vertical", 3),
    Sketcher.Constraint("Horizontal", 4),
    Sketcher.Constraint("Horizontal", 8),
    Sketcher.Constraint("Equal", 5, 7),
    Sketcher.Constraint("Equal", 7, 9),
    Sketcher.Constraint("Equal", 9, 11),
    Sketcher.Constraint("Symmetric", 5, 3, 11, 3, -2),
    Sketcher.Constraint("Symmetric", 0, 2, 3, 2, -2),
    Sketcher.Constraint("Horizontal", 11, 3, 0, 2),
    Sketcher.Constraint("Horizontal", 6, 2, 9, 1),
    Sketcher.Constraint("Radius", 5, Q("0.2 mm")),
    Sketcher.Constraint("DistanceX", 0, 2, 0, 1, Q("1 mm")),
    Sketcher.Constraint("DistanceX", 2, 1, 2, 2, Q("10 mm")),
    Sketcher.Constraint("Angle", 6, Q("-119.9995 deg")),
    Sketcher.Constraint("DistanceY", 7, 3, -1, 1, Q("22 mm")),
    Sketcher.Constraint("DistanceY", 2, 2, 7, 1, Q("1 mm")),
    Sketcher.Constraint("DistanceX", 8, 2, 8, 1, Q("3.439 mm")),
])
pocket4 = body.newObject("PartDesign::Pocket", "Pocket003")
pocket4.Profile = sketch9
pocket4.Length = 4
pocket4.Reversed = True

doc.recompute()
